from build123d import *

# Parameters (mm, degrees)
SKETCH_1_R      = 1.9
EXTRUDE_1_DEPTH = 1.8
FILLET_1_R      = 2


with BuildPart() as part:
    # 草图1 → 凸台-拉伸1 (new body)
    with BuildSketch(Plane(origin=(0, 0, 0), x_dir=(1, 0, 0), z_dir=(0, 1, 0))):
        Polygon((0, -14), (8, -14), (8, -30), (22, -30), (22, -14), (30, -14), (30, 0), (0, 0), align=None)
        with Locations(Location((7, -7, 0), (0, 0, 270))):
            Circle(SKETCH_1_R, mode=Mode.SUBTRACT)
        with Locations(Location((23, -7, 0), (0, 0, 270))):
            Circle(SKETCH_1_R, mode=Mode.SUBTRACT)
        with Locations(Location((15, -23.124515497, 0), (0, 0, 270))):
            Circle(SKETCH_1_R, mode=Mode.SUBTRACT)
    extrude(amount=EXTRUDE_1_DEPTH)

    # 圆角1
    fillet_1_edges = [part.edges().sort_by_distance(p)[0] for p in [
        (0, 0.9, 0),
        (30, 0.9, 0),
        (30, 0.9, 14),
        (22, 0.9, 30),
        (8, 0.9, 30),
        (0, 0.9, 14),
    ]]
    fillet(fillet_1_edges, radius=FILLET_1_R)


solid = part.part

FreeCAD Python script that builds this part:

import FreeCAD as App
import Part
import Sketcher
from FreeCAD import Vector
Q = App.Units.Quantity


def edges_at(feature, points):
    """Names of the edges that pass closest to the given points."""
    edges = feature.Shape.Edges
    near = lambda p: min(range(len(edges)), key=lambda i: edges[i].distToShape(Part.Vertex(*p))[0])
    return sorted({f"Edge{near(p) + 1}" for p in points})


def add_polygon(sketch, points):
    """Adds a closed chain of lines whose ends are joined by coincident constraints."""
    first, n = sketch.GeometryCount, len(points)
    for a, b in zip(points, points[1:] + points[:1]):
        sketch.addGeometry(Part.LineSegment(App.Vector(*a, 0), App.Vector(*b, 0)), False)
    for i in range(n):
        sketch.addConstraint(Sketcher.Constraint("Coincident", first + i, 2, first + (i + 1) % n, 1))

doc = App.newDocument("Part")
body = doc.addObject("PartDesign::Body", "Body")

# Sketch on XZ plane
sketch1 = body.newObject("Sketcher::SketchObject", "Sketch")
sketch1.AttachmentSupport = (doc.getObject("XZ_Plane"), [""])
sketch1.MapMode = "FlatFace"
add_polygon(sketch1, [(0, 14), (8, 14), (8, 30), (22, 30), (22, 14), (30, 14), (30, 0), (0, 0)])  # lines 0-7
sketch1.addGeometry(Part.Circle(Vector(15, 23.1, 0), Vector(0, 0, 1), 1.9), False)  # 8
sketch1.addGeometry(Part.Circle(Vector(7, 7, 0), Vector(0, 0, 1), 1.9), False)  # 9
sketch1.addGeometry(Part.Circle(Vector(23, 7, 0), Vector(0, 0, 1), 1.9), False)  # 10
sketch1.addConstraint([
    Sketcher.Constraint("Horizontal", 0),
    Sketcher.Constraint("Vertical", 1),
    Sketcher.Constraint("Horizontal", 2),
    Sketcher.Constraint("Vertical", 3),
    Sketcher.Constraint("Horizontal", 4),
    Sketcher.Constraint("Vertical", 5),
    Sketcher.Constraint("Horizontal", 6),
    Sketcher.Constraint("Vertical", 7),
    Sketcher.Constraint("Coincident", 6, 2, -1, 1),
    Sketcher.Constraint("Equal", 8, 9),
    Sketcher.Constraint("Equal", 9, 10),
    Sketcher.Constraint("Horizontal", 9, 3, 10, 3),
    Sketcher.Constraint("Horizontal", 0, 2, 3, 2),
    Sketcher.Constraint("Equal", 0, 4),
    Sketcher.Constraint("Equal", 2, 5),
    Sketcher.Constraint("Diameter", 8, Q("3.8 mm")),
    Sketcher.Constraint("DistanceX", 0, 1, 0, 2, Q("8 mm")),
    Sketcher.Constraint("DistanceX", 2, 1, 2, 2, Q("14 mm")),
    Sketcher.Constraint("DistanceY", 1, 1, 1, 2, Q("16 mm")),
    Sketcher.Constraint("DistanceX", -1, 1, 8, 3, Q("15 mm")),
    Sketcher.Constraint("DistanceX", -1, 1, 9, 3, Q("7 mm")),
    Sketcher.Constraint("DistanceY", -1, 1, 9, 3, Q("7 mm")),
    Sketcher.Constraint("DistanceX", -1, 1, 10, 3, Q("23 mm")),
    Sketcher.Constraint("DistanceY", -1, 1, 8, 3, Q("23.124515 mm")),
])
pad1 = body.newObject("PartDesign::Pad", "Pad")
pad1.Profile = sketch1
pad1.Length = 1.8
pad1.Reversed = True
doc.recompute()

fillet = body.newObject("PartDesign::Fillet", "Fillet")
fillet.Base = (pad1, edges_at(pad1, [
    (0, 0.9, 0),
    (30, 0.9, 0),
    (30, 0.9, 14),
    (22, 0.9, 30),
    (8, 0.9, 30),
    (0, 0.9, 14),
]))
fillet.Radius = 2

doc.recompute()
